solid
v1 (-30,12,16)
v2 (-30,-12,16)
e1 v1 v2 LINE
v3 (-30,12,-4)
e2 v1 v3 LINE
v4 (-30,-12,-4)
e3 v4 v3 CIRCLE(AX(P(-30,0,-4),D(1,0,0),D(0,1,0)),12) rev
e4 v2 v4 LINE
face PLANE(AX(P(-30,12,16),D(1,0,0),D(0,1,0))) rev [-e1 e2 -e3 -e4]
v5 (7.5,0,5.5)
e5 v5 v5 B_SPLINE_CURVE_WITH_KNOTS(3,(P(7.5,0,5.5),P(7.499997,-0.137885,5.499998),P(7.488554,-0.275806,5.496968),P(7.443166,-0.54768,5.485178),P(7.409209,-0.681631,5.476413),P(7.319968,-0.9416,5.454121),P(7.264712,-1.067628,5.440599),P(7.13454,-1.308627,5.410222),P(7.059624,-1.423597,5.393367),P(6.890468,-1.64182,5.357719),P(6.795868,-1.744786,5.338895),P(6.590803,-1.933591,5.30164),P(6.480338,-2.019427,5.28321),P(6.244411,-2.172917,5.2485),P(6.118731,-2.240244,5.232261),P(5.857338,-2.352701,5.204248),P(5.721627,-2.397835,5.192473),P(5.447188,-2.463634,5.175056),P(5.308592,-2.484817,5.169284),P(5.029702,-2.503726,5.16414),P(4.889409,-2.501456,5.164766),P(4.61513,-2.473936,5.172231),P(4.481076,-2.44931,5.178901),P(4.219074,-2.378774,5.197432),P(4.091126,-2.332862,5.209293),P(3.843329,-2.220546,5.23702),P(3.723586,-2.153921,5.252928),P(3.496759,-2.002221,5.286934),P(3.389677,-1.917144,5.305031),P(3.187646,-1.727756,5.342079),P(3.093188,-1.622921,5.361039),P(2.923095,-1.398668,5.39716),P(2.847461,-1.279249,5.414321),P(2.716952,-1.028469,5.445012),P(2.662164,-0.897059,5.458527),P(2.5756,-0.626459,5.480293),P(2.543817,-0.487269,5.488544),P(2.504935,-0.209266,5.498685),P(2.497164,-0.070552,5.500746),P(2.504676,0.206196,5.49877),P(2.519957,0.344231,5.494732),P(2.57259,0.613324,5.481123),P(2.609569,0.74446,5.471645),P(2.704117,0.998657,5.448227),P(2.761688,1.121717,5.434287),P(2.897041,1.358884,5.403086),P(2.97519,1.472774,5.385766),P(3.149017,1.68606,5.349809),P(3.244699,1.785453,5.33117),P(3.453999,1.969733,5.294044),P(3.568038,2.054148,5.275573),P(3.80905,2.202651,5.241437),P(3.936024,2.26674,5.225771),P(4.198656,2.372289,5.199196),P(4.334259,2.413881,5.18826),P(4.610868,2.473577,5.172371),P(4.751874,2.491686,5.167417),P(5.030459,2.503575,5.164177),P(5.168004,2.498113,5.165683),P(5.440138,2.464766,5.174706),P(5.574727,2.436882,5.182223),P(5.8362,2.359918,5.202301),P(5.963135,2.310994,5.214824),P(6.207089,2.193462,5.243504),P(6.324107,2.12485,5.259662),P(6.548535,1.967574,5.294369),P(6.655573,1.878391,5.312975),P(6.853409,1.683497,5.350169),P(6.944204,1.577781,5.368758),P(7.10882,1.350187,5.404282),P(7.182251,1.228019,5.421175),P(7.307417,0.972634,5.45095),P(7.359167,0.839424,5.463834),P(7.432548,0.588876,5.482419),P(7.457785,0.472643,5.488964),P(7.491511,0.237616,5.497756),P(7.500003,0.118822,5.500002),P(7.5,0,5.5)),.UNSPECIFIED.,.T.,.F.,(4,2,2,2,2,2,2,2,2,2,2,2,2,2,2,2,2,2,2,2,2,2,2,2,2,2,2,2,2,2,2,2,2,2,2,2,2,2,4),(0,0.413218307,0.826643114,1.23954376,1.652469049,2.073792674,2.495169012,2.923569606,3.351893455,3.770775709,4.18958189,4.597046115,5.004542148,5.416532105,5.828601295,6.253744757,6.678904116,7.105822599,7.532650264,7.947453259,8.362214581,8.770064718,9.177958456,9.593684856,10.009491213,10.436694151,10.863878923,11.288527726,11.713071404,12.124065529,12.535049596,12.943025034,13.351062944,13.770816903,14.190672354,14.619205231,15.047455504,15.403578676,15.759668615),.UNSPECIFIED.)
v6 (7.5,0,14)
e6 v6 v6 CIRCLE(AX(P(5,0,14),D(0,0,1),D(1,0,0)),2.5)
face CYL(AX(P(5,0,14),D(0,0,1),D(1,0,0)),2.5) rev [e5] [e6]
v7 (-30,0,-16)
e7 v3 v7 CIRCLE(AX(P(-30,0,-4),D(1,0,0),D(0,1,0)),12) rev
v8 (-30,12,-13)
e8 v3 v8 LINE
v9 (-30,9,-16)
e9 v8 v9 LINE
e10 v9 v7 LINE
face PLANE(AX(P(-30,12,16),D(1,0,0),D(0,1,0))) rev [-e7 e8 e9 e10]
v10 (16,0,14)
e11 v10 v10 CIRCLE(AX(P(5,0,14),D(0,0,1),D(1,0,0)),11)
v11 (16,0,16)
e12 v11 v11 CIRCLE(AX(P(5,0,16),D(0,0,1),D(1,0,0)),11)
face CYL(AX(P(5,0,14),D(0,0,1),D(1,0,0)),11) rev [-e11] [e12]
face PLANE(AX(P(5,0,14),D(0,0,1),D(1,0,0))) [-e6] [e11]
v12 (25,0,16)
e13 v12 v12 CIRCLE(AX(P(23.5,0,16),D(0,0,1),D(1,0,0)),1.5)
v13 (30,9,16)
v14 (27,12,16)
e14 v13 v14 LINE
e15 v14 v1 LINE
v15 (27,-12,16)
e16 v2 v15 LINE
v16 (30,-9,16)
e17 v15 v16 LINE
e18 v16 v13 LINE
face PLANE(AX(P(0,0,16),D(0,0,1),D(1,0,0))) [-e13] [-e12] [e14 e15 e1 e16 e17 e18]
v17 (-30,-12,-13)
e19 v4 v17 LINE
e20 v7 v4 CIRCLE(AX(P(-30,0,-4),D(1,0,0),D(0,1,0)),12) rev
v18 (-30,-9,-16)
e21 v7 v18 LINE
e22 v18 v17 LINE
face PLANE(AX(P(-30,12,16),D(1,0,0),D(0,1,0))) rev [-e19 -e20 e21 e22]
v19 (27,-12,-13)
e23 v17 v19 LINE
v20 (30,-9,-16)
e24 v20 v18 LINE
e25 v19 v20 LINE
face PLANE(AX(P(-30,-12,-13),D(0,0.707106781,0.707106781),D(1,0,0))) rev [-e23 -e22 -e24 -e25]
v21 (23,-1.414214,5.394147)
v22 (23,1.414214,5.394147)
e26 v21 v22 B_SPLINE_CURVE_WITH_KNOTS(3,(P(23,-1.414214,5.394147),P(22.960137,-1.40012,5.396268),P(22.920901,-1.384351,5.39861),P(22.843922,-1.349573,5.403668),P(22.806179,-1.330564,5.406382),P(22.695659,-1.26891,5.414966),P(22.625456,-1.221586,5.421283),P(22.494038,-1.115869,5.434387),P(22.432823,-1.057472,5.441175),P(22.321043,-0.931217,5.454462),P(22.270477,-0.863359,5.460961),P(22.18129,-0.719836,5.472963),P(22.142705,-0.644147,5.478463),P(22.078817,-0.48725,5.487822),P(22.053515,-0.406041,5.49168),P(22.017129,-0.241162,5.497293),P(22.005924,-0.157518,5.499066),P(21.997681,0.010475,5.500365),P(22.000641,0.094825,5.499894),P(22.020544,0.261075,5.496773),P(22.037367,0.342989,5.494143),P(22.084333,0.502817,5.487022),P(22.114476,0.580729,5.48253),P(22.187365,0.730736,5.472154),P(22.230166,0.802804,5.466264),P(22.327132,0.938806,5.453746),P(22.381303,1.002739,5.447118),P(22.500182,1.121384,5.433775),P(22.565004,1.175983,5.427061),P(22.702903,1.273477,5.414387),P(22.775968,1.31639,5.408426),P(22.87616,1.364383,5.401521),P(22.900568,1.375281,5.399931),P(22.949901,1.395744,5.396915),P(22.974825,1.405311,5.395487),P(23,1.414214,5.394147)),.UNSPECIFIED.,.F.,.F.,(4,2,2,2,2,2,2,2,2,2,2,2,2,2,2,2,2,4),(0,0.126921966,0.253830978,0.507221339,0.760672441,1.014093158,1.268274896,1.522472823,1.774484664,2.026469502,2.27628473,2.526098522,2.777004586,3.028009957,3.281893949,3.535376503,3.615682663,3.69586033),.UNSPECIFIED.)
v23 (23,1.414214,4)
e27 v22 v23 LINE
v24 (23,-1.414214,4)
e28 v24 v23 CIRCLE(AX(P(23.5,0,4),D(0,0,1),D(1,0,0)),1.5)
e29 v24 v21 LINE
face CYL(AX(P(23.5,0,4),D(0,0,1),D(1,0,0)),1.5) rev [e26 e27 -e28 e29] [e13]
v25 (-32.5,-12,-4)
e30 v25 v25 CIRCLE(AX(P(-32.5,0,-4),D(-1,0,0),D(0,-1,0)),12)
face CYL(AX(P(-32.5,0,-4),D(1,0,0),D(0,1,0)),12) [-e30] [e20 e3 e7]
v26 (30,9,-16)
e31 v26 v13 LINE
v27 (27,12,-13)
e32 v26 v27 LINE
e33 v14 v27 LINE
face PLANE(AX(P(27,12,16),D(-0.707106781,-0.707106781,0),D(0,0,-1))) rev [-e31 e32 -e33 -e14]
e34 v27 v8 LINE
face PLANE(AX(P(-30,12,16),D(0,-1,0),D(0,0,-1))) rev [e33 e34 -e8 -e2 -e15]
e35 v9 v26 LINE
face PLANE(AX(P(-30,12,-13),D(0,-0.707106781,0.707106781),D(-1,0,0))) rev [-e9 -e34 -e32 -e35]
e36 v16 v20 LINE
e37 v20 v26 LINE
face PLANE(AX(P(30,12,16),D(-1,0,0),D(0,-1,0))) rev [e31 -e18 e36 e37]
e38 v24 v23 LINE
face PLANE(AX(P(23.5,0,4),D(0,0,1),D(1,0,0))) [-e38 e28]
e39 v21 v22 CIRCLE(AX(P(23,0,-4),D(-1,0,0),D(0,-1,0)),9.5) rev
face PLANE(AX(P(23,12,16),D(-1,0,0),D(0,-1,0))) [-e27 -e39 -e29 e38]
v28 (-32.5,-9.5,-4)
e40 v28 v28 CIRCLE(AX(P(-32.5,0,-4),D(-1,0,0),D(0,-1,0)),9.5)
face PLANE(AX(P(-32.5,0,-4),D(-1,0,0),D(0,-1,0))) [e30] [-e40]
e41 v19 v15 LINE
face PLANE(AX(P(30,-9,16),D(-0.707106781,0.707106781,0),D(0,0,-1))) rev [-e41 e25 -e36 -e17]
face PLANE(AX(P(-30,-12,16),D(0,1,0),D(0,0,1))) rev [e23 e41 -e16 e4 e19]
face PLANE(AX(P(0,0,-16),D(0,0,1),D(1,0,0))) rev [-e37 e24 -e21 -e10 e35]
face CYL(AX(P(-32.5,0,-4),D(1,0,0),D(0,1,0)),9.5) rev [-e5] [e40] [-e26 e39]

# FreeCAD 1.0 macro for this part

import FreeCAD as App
import Part
import Sketcher
from FreeCAD import Vector


def edges_at(feature, points):
    """Names of the edges that pass closest to the given points."""
    edges = feature.Shape.Edges
    near = lambda p: min(range(len(edges)), key=lambda i: edges[i].distToShape(Part.Vertex(*p))[0])
    return sorted({f"Edge{near(p) + 1}" for p in points})


def add_polygon(sketch, points):
    """Adds a closed chain of lines whose ends are joined by coincident constraints."""
    first, n = sketch.GeometryCount, len(points)
    for a, b in zip(points, points[1:] + points[:1]):
        sketch.addGeometry(Part.LineSegment(App.Vector(*a, 0), App.Vector(*b, 0)), False)
    for i in range(n):
        sketch.addConstraint(Sketcher.Constraint("Coincident", first + i, 2, first + (i + 1) % n, 1))

doc = App.newDocument("Part")
body = doc.addObject("PartDesign::Body", "Body")

sketch1 = body.newObject("Sketcher::SketchObject", "Sketch")
sketch1.AttachmentSupport = (doc.getObject("XY_Plane"), [""])
sketch1.MapMode = "FlatFace"
add_polygon(sketch1, [(-30, 12), (-30, -12), (30, -12), (30, 12)])
sketch1.addConstraint([
    Sketcher.Constraint("Vertical", 0),
    Sketcher.Constraint("Horizontal", 1),
    Sketcher.Constraint("Vertical", 2),
    Sketcher.Constraint("Horizontal", 3),
    Sketcher.Constraint("Symmetric", 0, 2, 2, 2, -1, 1),
    Sketcher.Constraint("DistanceX", 1, 1, 1, 2, 60.0),
    Sketcher.Constraint("DistanceY", 0, 2, 0, 1, 24.0),
])
pad1 = body.newObject("PartDesign::Pad", "Pad")
pad1.Profile = sketch1
pad1.Length = 32
pad1.Midplane = True
doc.recompute()

chamfer = body.newObject("PartDesign::Chamfer", "Chamfer")
chamfer.Base = (pad1, edges_at(pad1, [(30, -12, 0), (30, 12, 0)]))
chamfer.Size = 3

sketch2 = body.newObject("Sketcher::SketchObject", "Sketch001")
sketch2.AttachmentSupport = (doc.getObject("XY_Plane"), [""])
sketch2.MapMode = "FlatFace"
sketch2.AttachmentOffset = App.Placement(Vector(0, 0, 16), App.Rotation())
sketch2.addGeometry(Part.Circle(Vector(5, 0, 0), Vector(0, 0, 1), 11), False)
sketch2.addConstraint([
    Sketcher.Constraint("PointOnObject", 0, 3, -1),
    Sketcher.Constraint("Diameter", 0, 22.0),
    Sketcher.Constraint("DistanceX", -1, 1, 0, 3, 5.0),
])
pocket1 = body.newObject("PartDesign::Pocket", "Pocket")
pocket1.Profile = sketch2
pocket1.Length = 2

sketch3 = body.newObject("Sketcher::SketchObject", "Sketch002")
sketch3.AttachmentSupport = (doc.getObject("YZ_Plane"), [""])
sketch3.MapMode = "FlatFace"
sketch3.AttachmentOffset = App.Placement(Vector(0, 0, -30), App.Rotation())
sketch3.addGeometry([
    Part.Circle(Vector(0, -4, 0), Vector(0, 0, 1), 12),
    Part.Circle(Vector(0, -4, 0), Vector(0, 0, 1), 9.5),
], False)
sketch3.addConstraint([
    Sketcher.Constraint("Coincident", 1, 3, 0, 3),
    Sketcher.Constraint("PointOnObject", 0, 3, -2),
    Sketcher.Constraint("Diameter", 0, 24.0),
    Sketcher.Constraint("Diameter", 1, 19.0),
    Sketcher.Constraint("DistanceY", 0, 3, -1, 1, 4.0),
])
pad2 = body.newObject("PartDesign::Pad", "Pad001")
pad2.Profile = sketch3
pad2.Length = 5
pad2.Midplane = True

sketch4 = body.newObject("Sketcher::SketchObject", "Sketch003")
sketch4.AttachmentSupport = (doc.getObject("YZ_Plane"), [""])
sketch4.MapMode = "FlatFace"
sketch4.AttachmentOffset = App.Placement(Vector(0, 0, 23), App.Rotation())
sketch4.addGeometry(Part.Circle(Vector(0, -4, 0), Vector(0, 0, 1), 9.5), False)
sketch4.addConstraint([
    Sketcher.Constraint("PointOnObject", 0, 3, -2),
    Sketcher.Constraint("Diameter", 0, 19.0),
    Sketcher.Constraint("DistanceY", 0, 3, -1, 1, 4.0),
])
pocket2 = body.newObject("PartDesign::Pocket", "Pocket001")
pocket2.Profile = sketch4
pocket2.Length = 53
doc.recompute()

chamfer2 = body.newObject("PartDesign::Chamfer", "Chamfer001")
chamfer2.Base = (pocket2, edges_at(pocket2, [(-1.5, -12, -16), (-1.5, 12, -16)]))
chamfer2.Size = 3

sketch5 = body.newObject("Sketcher::SketchObject", "Sketch004")
sketch5.AttachmentSupport = (doc.getObject("XY_Plane"), [""])
sketch5.MapMode = "FlatFace"
sketch5.AttachmentOffset = App.Placement(Vector(0, 0, 16), App.Rotation())
sketch5.addGeometry(Part.Circle(Vector(23.5, 0, 0), Vector(0, 0, 1), 1.5), False)
sketch5.addConstraint([
    Sketcher.Constraint("PointOnObject", 0, 3, -1),
    Sketcher.Constraint("Diameter", 0, 3.0),
    Sketcher.Constraint("DistanceX", -1, 1, 0, 3, 23.5),
])
pocket3 = body.newObject("PartDesign::Pocket", "Pocket002")
pocket3.Profile = sketch5
pocket3.Length = 12

sketch6 = body.newObject("Sketcher::SketchObject", "Sketch005")
sketch6.AttachmentSupport = (doc.getObject("XY_Plane"), [""])
sketch6.MapMode = "FlatFace"
sketch6.AttachmentOffset = App.Placement(Vector(0, 0, 14), App.Rotation())
sketch6.addGeometry(Part.Circle(Vector(5, 0, 0), Vector(0, 0, 1), 2.5), False)
sketch6.addConstraint([
    Sketcher.Constraint("PointOnObject", 0, 3, -1),
    Sketcher.Constraint("Diameter", 0, 5.0),
    Sketcher.Constraint("DistanceX", -1, 1, 0, 3, 5.0),
])
doc.recompute()
hole = body.newObject("PartDesign::Hole", "Hole")
hole.Profile = sketch6
hole.ThreadType = "None"
hole.Diameter = 5
hole.DepthType = "Dimension"
hole.Depth = 12
hole.DrillPoint = "Angled"
hole.DrillPointAngle = 118

doc.recompute()
